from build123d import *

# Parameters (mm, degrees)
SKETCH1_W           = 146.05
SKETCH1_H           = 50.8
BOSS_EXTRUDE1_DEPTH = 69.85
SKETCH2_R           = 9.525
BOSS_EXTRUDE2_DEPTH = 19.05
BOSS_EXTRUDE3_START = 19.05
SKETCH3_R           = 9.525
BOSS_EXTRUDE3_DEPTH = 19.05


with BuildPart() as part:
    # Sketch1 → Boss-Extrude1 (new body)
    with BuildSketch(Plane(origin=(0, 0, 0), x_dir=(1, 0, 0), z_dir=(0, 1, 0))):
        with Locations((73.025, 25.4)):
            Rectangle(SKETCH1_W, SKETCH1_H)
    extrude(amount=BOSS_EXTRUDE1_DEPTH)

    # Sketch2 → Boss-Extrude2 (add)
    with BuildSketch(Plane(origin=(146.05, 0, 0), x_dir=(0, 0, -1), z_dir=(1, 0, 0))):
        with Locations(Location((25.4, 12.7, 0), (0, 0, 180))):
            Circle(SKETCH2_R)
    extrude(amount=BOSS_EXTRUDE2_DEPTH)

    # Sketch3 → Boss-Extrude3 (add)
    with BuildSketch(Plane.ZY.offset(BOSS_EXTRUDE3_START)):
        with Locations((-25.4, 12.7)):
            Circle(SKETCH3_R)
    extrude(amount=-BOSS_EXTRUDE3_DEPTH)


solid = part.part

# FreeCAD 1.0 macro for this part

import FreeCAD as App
import Part
import Sketcher
Q = App.Units.Quantity

doc = App.newDocument("Part")
body = doc.addObject("PartDesign::Body", "Body")

sketch1 = body.newObject("Sketcher::SketchObject", "Sketch")
sketch1.AttachmentSupport = (doc.getObject("XZ_Plane"), [""])
sketch1.MapMode = "FlatFace"
sketch1.addGeometry(Part.LineSegment(App.Vector(0, -51, 0), App.Vector(0, 0, 0)), False)
sketch1.addGeometry(Part.LineSegment(App.Vector(0, 0, 0), App.Vector(146, 0, 0)), False)
sketch1.addGeometry(Part.LineSegment(App.Vector(146, 0, 0), App.Vector(146, -51, 0)), False)
sketch1.addGeometry(Part.LineSegment(App.Vector(146, -51, 0), App.Vector(0, -51, 0)), False)
sketch1.addConstraint(Sketcher.Constraint("Coincident", 0, 2, 1, 1))
sketch1.addConstraint(Sketcher.Constraint("Coincident", 1, 2, 2, 1))
sketch1.addConstraint(Sketcher.Constraint("Coincident", 2, 2, 3, 1))
sketch1.addConstraint(Sketcher.Constraint("Coincident", 3, 2, 0, 1))
sketch1.addConstraint(Sketcher.Constraint("Vertical", 0))
sketch1.addConstraint(Sketcher.Constraint("Horizontal", 1))
sketch1.addConstraint(Sketcher.Constraint("Vertical", 2))
sketch1.addConstraint(Sketcher.Constraint("Horizontal", 3))
sketch1.addConstraint(Sketcher.Constraint("Coincident", 0, 2, -1, 1))
sketch1.addConstraint(Sketcher.Constraint("DistanceY", 0, 1, 0, 2, Q("2 in")))
sketch1.addConstraint(Sketcher.Constraint("DistanceX", 1, 1, 1, 2, Q("5.75 in")))
pad1 = body.newObject("PartDesign::Pad", "Pad")
pad1.Profile = sketch1
pad1.Length = Q("2.75 in")
pad1.Reversed = True

sketch2 = body.newObject("Sketcher::SketchObject", "Sketch001")
sketch2.AttachmentSupport = (doc.getObject("YZ_Plane"), [""])
sketch2.MapMode = "FlatFace"
sketch2.AttachmentOffset = App.Placement(App.Vector(0, 0, 5.75 * 25.4), App.Rotation())
sketch2.addGeometry(Part.Circle(App.Vector(13, -25, 0), App.Vector(0, 0, 1), 10), False)
sketch2.addConstraint(Sketcher.Constraint("Diameter", 0, Q("0.75 in")))
sketch2.addConstraint(Sketcher.Constraint("DistanceY", 0, 3, -1, 1, Q("1 in")))
sketch2.addConstraint(Sketcher.Constraint("DistanceX", -1, 1, 0, 3, Q("0.5 in")))
pad2 = body.newObject("PartDesign::Pad", "Pad001")
pad2.Profile = sketch2
pad2.Length = Q("0.75 in")

sketch3 = body.newObject("Sketcher::SketchObject", "Sketch002")
sketch3.AttachmentSupport = (doc.getObject("YZ_Plane"), [""])
sketch3.MapMode = "FlatFace"
sketch3.AttachmentOffset = App.Placement(App.Vector(0, 0, -0.75 * 25.4), App.Rotation())
sketch3.addGeometry(Part.Circle(App.Vector(13, -25, 0), App.Vector(0, 0, 1), 10), False)
sketch3.addConstraint(Sketcher.Constraint("Diameter", 0, Q("0.75 in")))
sketch3.addConstraint(Sketcher.Constraint("DistanceY", 0, 3, -1, 1, Q("1 in")))
sketch3.addConstraint(Sketcher.Constraint("DistanceX", -1, 1, 0, 3, Q("0.5 in")))
pad3 = body.newObject("PartDesign::Pad", "Pad002")
pad3.Profile = sketch3
pad3.Length = Q("0.75 in")

doc.recompute()
